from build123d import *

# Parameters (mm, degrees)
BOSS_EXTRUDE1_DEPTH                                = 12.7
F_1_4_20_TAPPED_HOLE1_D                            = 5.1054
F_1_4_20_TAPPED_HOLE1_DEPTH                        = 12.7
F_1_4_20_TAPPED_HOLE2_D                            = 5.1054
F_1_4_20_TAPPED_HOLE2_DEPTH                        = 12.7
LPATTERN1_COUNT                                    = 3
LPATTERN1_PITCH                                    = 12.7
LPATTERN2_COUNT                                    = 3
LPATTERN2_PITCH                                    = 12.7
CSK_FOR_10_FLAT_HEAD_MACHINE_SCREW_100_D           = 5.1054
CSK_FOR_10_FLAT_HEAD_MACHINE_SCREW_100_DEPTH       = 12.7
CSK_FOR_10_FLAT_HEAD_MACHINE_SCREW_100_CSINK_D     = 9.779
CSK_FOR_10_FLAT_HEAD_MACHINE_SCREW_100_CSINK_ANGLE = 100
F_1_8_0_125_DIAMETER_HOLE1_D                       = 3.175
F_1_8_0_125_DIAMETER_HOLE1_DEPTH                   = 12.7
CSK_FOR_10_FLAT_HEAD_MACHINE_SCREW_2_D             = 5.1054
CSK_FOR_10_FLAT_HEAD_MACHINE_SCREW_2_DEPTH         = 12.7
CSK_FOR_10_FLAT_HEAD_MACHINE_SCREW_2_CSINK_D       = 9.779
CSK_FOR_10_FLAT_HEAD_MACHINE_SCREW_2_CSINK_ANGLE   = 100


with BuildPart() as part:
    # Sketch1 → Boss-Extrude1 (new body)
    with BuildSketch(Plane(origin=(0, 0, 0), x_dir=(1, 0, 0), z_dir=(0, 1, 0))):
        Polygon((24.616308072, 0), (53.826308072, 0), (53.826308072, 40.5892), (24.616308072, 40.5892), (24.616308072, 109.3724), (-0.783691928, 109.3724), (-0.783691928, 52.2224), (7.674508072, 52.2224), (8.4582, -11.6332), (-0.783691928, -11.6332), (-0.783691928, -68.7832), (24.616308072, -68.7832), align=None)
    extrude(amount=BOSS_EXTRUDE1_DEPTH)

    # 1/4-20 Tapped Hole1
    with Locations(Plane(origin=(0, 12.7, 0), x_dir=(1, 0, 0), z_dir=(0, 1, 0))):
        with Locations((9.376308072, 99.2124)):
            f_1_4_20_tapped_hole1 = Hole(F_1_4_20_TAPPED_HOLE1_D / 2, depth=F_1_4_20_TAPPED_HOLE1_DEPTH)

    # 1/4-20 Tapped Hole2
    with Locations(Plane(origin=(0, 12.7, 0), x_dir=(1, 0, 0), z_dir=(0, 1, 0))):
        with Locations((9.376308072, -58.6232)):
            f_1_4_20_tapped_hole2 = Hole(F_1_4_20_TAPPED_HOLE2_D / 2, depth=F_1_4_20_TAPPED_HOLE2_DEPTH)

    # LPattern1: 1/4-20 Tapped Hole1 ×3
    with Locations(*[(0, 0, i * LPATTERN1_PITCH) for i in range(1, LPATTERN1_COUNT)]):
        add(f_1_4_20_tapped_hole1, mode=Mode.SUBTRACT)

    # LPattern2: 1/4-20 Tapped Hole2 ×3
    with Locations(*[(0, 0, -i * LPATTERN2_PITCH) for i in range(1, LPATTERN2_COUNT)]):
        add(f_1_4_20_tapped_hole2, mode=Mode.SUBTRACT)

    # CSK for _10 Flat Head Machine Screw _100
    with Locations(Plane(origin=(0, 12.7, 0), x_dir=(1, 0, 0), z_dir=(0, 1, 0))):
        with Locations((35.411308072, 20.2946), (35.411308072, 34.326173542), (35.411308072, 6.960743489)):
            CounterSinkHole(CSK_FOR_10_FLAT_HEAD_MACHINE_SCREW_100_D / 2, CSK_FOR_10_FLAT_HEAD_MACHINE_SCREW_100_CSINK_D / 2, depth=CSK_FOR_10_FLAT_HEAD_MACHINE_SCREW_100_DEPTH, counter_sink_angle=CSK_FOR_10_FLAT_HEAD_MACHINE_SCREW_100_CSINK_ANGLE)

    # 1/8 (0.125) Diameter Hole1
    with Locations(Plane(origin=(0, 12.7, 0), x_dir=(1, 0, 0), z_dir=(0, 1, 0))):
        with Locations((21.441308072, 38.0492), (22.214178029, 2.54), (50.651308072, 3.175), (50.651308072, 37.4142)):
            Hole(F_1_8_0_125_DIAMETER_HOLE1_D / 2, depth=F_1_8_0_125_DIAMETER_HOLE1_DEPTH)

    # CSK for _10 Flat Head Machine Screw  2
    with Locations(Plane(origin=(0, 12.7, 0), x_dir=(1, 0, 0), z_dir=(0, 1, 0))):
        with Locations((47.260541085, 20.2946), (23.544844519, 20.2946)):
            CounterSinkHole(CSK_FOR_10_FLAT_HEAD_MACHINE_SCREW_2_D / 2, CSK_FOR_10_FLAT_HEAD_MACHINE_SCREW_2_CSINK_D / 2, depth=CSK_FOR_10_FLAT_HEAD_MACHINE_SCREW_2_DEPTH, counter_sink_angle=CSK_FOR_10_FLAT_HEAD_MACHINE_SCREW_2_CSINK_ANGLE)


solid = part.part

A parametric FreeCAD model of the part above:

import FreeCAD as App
import Part
import Sketcher
Q = App.Units.Quantity


def add_polygon(sketch, points):
    """Adds a closed chain of lines whose ends are joined by coincident constraints."""
    first, n = sketch.GeometryCount, len(points)
    for a, b in zip(points, points[1:] + points[:1]):
        sketch.addGeometry(Part.LineSegment(App.Vector(*a, 0), App.Vector(*b, 0)), False)
    for i in range(n):
        sketch.addConstraint(Sketcher.Constraint("Coincident", first + i, 2, first + (i + 1) % n, 1))

doc = App.newDocument("Part")
body = doc.addObject("PartDesign::Body", "Body")

sketch1 = body.newObject("Sketcher::SketchObject", "Sketch")
sketch1.AttachmentSupport = (doc.getObject("XZ_Plane"), [""])
sketch1.MapMode = "FlatFace"
add_polygon(sketch1, [(25, 0), (54, 0), (54, -41), (25, -41), (25, -109), (-1, -109), (-1, -52), (8, -52), (8, 12), (-1, 12), (-1, 69), (25, 69)])
sketch1.addConstraint(Sketcher.Constraint("Horizontal", 0))
sketch1.addConstraint(Sketcher.Constraint("Vertical", 1))
sketch1.addConstraint(Sketcher.Constraint("Horizontal", 2))
sketch1.addConstraint(Sketcher.Constraint("Vertical", 3))
sketch1.addConstraint(Sketcher.Constraint("Horizontal", 4))
sketch1.addConstraint(Sketcher.Constraint("Vertical", 5))
sketch1.addConstraint(Sketcher.Constraint("Horizontal", 6))
sketch1.addConstraint(Sketcher.Constraint("Horizontal", 8))
sketch1.addConstraint(Sketcher.Constraint("Vertical", 9))
sketch1.addConstraint(Sketcher.Constraint("Horizontal", 10))
sketch1.addConstraint(Sketcher.Constraint("Vertical", 11))
sketch1.addConstraint(Sketcher.Constraint("PointOnObject", 0, 2, -1))
sketch1.addConstraint(Sketcher.Constraint("Vertical", 5, 2, 8, 2))
sketch1.addConstraint(Sketcher.Constraint("Vertical", 3, 2, 10, 2))
sketch1.addConstraint(Sketcher.Constraint("Equal", 5, 9))
sketch1.addConstraint(Sketcher.Constraint("Equal", 3, 11))
sketch1.addConstraint(Sketcher.Constraint("DistanceX", 4, 2, 4, 1, Q("1 in")))
sketch1.addConstraint(Sketcher.Constraint("DistanceX", 0, 1, 0, 2, Q("1.15 in")))
sketch1.addConstraint(Sketcher.Constraint("DistanceY", 5, 1, 5, 2, Q("2.25 in")))
sketch1.addConstraint(Sketcher.Constraint("DistanceX", 6, 1, 6, 2, Q("0.333 in")))
sketch1.addConstraint(Sketcher.Constraint("DistanceY", 1, 2, 1, 1, Q("1.598 in")))
sketch1.addConstraint(Sketcher.Constraint("DistanceY", 3, 2, 3, 1, Q("2.708 in")))
sketch1.addConstraint(Sketcher.Constraint("DistanceX", -1, 1, 7, 2, Q("0.333 in")))
sketch1.addConstraint(Sketcher.Constraint("DistanceX", 8, 2, 8, 1, Q("9.241892 mm")))
pad1 = body.newObject("PartDesign::Pad", "Pad")
pad1.Profile = sketch1
pad1.Length = Q("0.5 in")
pad1.Reversed = True

sketch2 = body.newObject("Sketcher::SketchObject", "Sketch001")
sketch2.AttachmentSupport = (doc.getObject("XZ_Plane"), [""])
sketch2.MapMode = "FlatFace"
sketch2.AttachmentOffset = App.Placement(App.Vector(0, 0, -0.5 * 25.4), App.Rotation())
sketch2.addGeometry(Part.Circle(App.Vector(9.4, -99.2, 0), App.Vector(0, 0, 1), 2.6), False)
sketch2.addConstraint(Sketcher.Constraint("Diameter", 0, Q("0.201 in")))
sketch2.addConstraint(Sketcher.Constraint("DistanceY", 0, 3, -1, 1, Q("3.906 in")))
sketch2.addConstraint(Sketcher.Constraint("DistanceX", -1, 1, 0, 3, Q("9.376308 mm")))
doc.recompute()
hole = body.newObject("PartDesign::Hole", "Hole")
hole.Profile = sketch2
hole.ThreadType = "None"
hole.Diameter = Q("0.201 in")
hole.DepthType = "Dimension"
hole.Depth = Q("0.5 in")
hole.DrillPoint = "Flat"
hole.Reversed = True

sketch3 = body.newObject("Sketcher::SketchObject", "Sketch002")
sketch3.AttachmentSupport = (doc.getObject("XZ_Plane"), [""])
sketch3.MapMode = "FlatFace"
sketch3.AttachmentOffset = App.Placement(App.Vector(0, 0, -0.5 * 25.4), App.Rotation())
sketch3.addGeometry(Part.Circle(App.Vector(9.4, 58.6, 0), App.Vector(0, 0, 1), 2.6), False)
sketch3.addConstraint(Sketcher.Constraint("Diameter", 0, Q("0.201 in")))
sketch3.addConstraint(Sketcher.Constraint("DistanceY", -1, 1, 0, 3, Q("2.308 in")))
sketch3.addConstraint(Sketcher.Constraint("DistanceX", -1, 1, 0, 3, Q("9.376308 mm")))
doc.recompute()
hole2 = body.newObject("PartDesign::Hole", "Hole001")
hole2.Profile = sketch3
hole2.ThreadType = "None"
hole2.Diameter = Q("0.201 in")
hole2.DepthType = "Dimension"
hole2.Depth = Q("0.5 in")
hole2.DrillPoint = "Flat"
hole2.Reversed = True
doc.recompute()

linearpattern = body.newObject("PartDesign::LinearPattern", "LinearPattern")
linearpattern.Originals = [hole]
linearpattern.Direction = (doc.getObject("Z_Axis"), [""])
linearpattern.Mode = "offset"
linearpattern.Offset = Q("0.5 in")
linearpattern.Occurrences = 3
body.Tip = linearpattern
doc.recompute()

linearpattern2 = body.newObject("PartDesign::LinearPattern", "LinearPattern001")
linearpattern2.Originals = [hole2]
linearpattern2.Direction = (doc.getObject("Z_Axis"), [""])
linearpattern2.Mode = "offset"
linearpattern2.Offset = Q("0.5 in")
linearpattern2.Occurrences = 3
linearpattern2.Reversed = True
body.Tip = linearpattern2

sketch4 = body.newObject("Sketcher::SketchObject", "Sketch003")
sketch4.AttachmentSupport = (doc.getObject("XZ_Plane"), [""])
sketch4.MapMode = "FlatFace"
sketch4.AttachmentOffset = App.Placement(App.Vector(0, 0, -0.5 * 25.4), App.Rotation())
sketch4.addGeometry(Part.Circle(App.Vector(35.4, -20.3, 0), App.Vector(0, 0, 1), 2.6), False)
sketch4.addGeometry(Part.Circle(App.Vector(35.4, -34.3, 0), App.Vector(0, 0, 1), 2.6), False)
sketch4.addGeometry(Part.Circle(App.Vector(35.4, -7, 0), App.Vector(0, 0, 1), 2.6), False)
sketch4.addConstraint(Sketcher.Constraint("Equal", 0, 1))
sketch4.addConstraint(Sketcher.Constraint("Equal", 1, 2))
sketch4.addConstraint(Sketcher.Constraint("Vertical", 0, 3, 1, 3))
sketch4.addConstraint(Sketcher.Constraint("Vertical", 1, 3, 2, 3))
sketch4.addConstraint(Sketcher.Constraint("Diameter", 0, Q("0.201 in")))
sketch4.addConstraint(Sketcher.Constraint("DistanceY", 0, 3, -1, 1, Q("0.799 in")))
sketch4.addConstraint(Sketcher.Constraint("DistanceX", -1, 1, 0, 3, Q("35.411308 mm")))
sketch4.addConstraint(Sketcher.Constraint("DistanceY", 1, 3, 2, 3, Q("27.36543 mm")))
sketch4.addConstraint(Sketcher.Constraint("DistanceY", 1, 3, -1, 1, Q("34.326174 mm")))
doc.recompute()
hole3 = body.newObject("PartDesign::Hole", "Hole002")
hole3.Profile = sketch4
hole3.ThreadType = "None"
hole3.Diameter = Q("0.201 in")
hole3.DepthType = "Dimension"
hole3.Depth = Q("0.5 in")
hole3.DrillPoint = "Flat"
hole3.HoleCutType = "Countersink"
hole3.HoleCutDiameter = Q("0.385 in")
hole3.HoleCutCountersinkAngle = 100
hole3.Reversed = True

sketch5 = body.newObject("Sketcher::SketchObject", "Sketch004")
sketch5.AttachmentSupport = (doc.getObject("XZ_Plane"), [""])
sketch5.MapMode = "FlatFace"
sketch5.AttachmentOffset = App.Placement(App.Vector(0, 0, -0.5 * 25.4), App.Rotation())
sketch5.addGeometry(Part.Circle(App.Vector(21.4, -38, 0), App.Vector(0, 0, 1), 1.6), False)
sketch5.addGeometry(Part.Circle(App.Vector(22.2, -2.5, 0), App.Vector(0, 0, 1), 1.6), False)
sketch5.addGeometry(Part.Circle(App.Vector(50.7, -3.2, 0), App.Vector(0, 0, 1), 1.6), False)
sketch5.addGeometry(Part.Circle(App.Vector(50.7, -37.4, 0), App.Vector(0, 0, 1), 1.6), False)
sketch5.addConstraint(Sketcher.Constraint("Equal", 0, 1))
sketch5.addConstraint(Sketcher.Constraint("Equal", 1, 2))
sketch5.addConstraint(Sketcher.Constraint("Equal", 2, 3))
sketch5.addConstraint(Sketcher.Constraint("Vertical", 2, 3, 3, 3))
sketch5.addConstraint(Sketcher.Constraint("Diameter", 0, Q("0.125 in")))
sketch5.addConstraint(Sketcher.Constraint("DistanceY", 1, 3, -1, 1, Q("0.1 in")))
sketch5.addConstraint(Sketcher.Constraint("DistanceX", 0, 3, 2, 3, Q("1.15 in")))
sketch5.addConstraint(Sketcher.Constraint("DistanceY", 0, 3, -1, 1, Q("1.498 in")))
sketch5.addConstraint(Sketcher.Constraint("DistanceY", 2, 3, -1, 1, Q("0.125 in")))
sketch5.addConstraint(Sketcher.Constraint("DistanceY", 3, 3, -1, 1, Q("1.473 in")))
sketch5.addConstraint(Sketcher.Constraint("DistanceX", -1, 1, 0, 3, Q("21.441308 mm")))
sketch5.addConstraint(Sketcher.Constraint("DistanceX", -1, 1, 1, 3, Q("22.214178 mm")))
doc.recompute()
hole4 = body.newObject("PartDesign::Hole", "Hole003")
hole4.Profile = sketch5
hole4.ThreadType = "None"
hole4.Diameter = Q("0.125 in")
hole4.DepthType = "Dimension"
hole4.Depth = Q("0.5 in")
hole4.DrillPoint = "Flat"
hole4.Reversed = True

sketch6 = body.newObject("Sketcher::SketchObject", "Sketch005")
sketch6.AttachmentSupport = (doc.getObject("XZ_Plane"), [""])
sketch6.MapMode = "FlatFace"
sketch6.AttachmentOffset = App.Placement(App.Vector(0, 0, -0.5 * 25.4), App.Rotation())
sketch6.addGeometry(Part.Circle(App.Vector(47.3, -20.3, 0), App.Vector(0, 0, 1), 2.6), False)
sketch6.addGeometry(Part.Circle(App.Vector(23.5, -20.3, 0), App.Vector(0, 0, 1), 2.6), False)
sketch6.addConstraint(Sketcher.Constraint("Equal", 0, 1))
sketch6.addConstraint(Sketcher.Constraint("Horizontal", 0, 3, 1, 3))
sketch6.addConstraint(Sketcher.Constraint("Diameter", 0, Q("0.201 in")))
sketch6.addConstraint(Sketcher.Constraint("DistanceY", 0, 3, -1, 1, Q("0.799 in")))
sketch6.addConstraint(Sketcher.Constraint("DistanceX", -1, 1, 0, 3, Q("47.260541 mm")))
sketch6.addConstraint(Sketcher.Constraint("DistanceX", -1, 1, 1, 3, Q("23.544845 mm")))
doc.recompute()
hole5 = body.newObject("PartDesign::Hole", "Hole004")
hole5.Profile = sketch6
hole5.ThreadType = "None"
hole5.Diameter = Q("0.201 in")
hole5.DepthType = "Dimension"
hole5.Depth = Q("0.5 in")
hole5.DrillPoint = "Flat"
hole5.HoleCutType = "Countersink"
hole5.HoleCutDiameter = Q("0.385 in")
hole5.HoleCutCountersinkAngle = 100
hole5.Reversed = True

doc.recompute()
